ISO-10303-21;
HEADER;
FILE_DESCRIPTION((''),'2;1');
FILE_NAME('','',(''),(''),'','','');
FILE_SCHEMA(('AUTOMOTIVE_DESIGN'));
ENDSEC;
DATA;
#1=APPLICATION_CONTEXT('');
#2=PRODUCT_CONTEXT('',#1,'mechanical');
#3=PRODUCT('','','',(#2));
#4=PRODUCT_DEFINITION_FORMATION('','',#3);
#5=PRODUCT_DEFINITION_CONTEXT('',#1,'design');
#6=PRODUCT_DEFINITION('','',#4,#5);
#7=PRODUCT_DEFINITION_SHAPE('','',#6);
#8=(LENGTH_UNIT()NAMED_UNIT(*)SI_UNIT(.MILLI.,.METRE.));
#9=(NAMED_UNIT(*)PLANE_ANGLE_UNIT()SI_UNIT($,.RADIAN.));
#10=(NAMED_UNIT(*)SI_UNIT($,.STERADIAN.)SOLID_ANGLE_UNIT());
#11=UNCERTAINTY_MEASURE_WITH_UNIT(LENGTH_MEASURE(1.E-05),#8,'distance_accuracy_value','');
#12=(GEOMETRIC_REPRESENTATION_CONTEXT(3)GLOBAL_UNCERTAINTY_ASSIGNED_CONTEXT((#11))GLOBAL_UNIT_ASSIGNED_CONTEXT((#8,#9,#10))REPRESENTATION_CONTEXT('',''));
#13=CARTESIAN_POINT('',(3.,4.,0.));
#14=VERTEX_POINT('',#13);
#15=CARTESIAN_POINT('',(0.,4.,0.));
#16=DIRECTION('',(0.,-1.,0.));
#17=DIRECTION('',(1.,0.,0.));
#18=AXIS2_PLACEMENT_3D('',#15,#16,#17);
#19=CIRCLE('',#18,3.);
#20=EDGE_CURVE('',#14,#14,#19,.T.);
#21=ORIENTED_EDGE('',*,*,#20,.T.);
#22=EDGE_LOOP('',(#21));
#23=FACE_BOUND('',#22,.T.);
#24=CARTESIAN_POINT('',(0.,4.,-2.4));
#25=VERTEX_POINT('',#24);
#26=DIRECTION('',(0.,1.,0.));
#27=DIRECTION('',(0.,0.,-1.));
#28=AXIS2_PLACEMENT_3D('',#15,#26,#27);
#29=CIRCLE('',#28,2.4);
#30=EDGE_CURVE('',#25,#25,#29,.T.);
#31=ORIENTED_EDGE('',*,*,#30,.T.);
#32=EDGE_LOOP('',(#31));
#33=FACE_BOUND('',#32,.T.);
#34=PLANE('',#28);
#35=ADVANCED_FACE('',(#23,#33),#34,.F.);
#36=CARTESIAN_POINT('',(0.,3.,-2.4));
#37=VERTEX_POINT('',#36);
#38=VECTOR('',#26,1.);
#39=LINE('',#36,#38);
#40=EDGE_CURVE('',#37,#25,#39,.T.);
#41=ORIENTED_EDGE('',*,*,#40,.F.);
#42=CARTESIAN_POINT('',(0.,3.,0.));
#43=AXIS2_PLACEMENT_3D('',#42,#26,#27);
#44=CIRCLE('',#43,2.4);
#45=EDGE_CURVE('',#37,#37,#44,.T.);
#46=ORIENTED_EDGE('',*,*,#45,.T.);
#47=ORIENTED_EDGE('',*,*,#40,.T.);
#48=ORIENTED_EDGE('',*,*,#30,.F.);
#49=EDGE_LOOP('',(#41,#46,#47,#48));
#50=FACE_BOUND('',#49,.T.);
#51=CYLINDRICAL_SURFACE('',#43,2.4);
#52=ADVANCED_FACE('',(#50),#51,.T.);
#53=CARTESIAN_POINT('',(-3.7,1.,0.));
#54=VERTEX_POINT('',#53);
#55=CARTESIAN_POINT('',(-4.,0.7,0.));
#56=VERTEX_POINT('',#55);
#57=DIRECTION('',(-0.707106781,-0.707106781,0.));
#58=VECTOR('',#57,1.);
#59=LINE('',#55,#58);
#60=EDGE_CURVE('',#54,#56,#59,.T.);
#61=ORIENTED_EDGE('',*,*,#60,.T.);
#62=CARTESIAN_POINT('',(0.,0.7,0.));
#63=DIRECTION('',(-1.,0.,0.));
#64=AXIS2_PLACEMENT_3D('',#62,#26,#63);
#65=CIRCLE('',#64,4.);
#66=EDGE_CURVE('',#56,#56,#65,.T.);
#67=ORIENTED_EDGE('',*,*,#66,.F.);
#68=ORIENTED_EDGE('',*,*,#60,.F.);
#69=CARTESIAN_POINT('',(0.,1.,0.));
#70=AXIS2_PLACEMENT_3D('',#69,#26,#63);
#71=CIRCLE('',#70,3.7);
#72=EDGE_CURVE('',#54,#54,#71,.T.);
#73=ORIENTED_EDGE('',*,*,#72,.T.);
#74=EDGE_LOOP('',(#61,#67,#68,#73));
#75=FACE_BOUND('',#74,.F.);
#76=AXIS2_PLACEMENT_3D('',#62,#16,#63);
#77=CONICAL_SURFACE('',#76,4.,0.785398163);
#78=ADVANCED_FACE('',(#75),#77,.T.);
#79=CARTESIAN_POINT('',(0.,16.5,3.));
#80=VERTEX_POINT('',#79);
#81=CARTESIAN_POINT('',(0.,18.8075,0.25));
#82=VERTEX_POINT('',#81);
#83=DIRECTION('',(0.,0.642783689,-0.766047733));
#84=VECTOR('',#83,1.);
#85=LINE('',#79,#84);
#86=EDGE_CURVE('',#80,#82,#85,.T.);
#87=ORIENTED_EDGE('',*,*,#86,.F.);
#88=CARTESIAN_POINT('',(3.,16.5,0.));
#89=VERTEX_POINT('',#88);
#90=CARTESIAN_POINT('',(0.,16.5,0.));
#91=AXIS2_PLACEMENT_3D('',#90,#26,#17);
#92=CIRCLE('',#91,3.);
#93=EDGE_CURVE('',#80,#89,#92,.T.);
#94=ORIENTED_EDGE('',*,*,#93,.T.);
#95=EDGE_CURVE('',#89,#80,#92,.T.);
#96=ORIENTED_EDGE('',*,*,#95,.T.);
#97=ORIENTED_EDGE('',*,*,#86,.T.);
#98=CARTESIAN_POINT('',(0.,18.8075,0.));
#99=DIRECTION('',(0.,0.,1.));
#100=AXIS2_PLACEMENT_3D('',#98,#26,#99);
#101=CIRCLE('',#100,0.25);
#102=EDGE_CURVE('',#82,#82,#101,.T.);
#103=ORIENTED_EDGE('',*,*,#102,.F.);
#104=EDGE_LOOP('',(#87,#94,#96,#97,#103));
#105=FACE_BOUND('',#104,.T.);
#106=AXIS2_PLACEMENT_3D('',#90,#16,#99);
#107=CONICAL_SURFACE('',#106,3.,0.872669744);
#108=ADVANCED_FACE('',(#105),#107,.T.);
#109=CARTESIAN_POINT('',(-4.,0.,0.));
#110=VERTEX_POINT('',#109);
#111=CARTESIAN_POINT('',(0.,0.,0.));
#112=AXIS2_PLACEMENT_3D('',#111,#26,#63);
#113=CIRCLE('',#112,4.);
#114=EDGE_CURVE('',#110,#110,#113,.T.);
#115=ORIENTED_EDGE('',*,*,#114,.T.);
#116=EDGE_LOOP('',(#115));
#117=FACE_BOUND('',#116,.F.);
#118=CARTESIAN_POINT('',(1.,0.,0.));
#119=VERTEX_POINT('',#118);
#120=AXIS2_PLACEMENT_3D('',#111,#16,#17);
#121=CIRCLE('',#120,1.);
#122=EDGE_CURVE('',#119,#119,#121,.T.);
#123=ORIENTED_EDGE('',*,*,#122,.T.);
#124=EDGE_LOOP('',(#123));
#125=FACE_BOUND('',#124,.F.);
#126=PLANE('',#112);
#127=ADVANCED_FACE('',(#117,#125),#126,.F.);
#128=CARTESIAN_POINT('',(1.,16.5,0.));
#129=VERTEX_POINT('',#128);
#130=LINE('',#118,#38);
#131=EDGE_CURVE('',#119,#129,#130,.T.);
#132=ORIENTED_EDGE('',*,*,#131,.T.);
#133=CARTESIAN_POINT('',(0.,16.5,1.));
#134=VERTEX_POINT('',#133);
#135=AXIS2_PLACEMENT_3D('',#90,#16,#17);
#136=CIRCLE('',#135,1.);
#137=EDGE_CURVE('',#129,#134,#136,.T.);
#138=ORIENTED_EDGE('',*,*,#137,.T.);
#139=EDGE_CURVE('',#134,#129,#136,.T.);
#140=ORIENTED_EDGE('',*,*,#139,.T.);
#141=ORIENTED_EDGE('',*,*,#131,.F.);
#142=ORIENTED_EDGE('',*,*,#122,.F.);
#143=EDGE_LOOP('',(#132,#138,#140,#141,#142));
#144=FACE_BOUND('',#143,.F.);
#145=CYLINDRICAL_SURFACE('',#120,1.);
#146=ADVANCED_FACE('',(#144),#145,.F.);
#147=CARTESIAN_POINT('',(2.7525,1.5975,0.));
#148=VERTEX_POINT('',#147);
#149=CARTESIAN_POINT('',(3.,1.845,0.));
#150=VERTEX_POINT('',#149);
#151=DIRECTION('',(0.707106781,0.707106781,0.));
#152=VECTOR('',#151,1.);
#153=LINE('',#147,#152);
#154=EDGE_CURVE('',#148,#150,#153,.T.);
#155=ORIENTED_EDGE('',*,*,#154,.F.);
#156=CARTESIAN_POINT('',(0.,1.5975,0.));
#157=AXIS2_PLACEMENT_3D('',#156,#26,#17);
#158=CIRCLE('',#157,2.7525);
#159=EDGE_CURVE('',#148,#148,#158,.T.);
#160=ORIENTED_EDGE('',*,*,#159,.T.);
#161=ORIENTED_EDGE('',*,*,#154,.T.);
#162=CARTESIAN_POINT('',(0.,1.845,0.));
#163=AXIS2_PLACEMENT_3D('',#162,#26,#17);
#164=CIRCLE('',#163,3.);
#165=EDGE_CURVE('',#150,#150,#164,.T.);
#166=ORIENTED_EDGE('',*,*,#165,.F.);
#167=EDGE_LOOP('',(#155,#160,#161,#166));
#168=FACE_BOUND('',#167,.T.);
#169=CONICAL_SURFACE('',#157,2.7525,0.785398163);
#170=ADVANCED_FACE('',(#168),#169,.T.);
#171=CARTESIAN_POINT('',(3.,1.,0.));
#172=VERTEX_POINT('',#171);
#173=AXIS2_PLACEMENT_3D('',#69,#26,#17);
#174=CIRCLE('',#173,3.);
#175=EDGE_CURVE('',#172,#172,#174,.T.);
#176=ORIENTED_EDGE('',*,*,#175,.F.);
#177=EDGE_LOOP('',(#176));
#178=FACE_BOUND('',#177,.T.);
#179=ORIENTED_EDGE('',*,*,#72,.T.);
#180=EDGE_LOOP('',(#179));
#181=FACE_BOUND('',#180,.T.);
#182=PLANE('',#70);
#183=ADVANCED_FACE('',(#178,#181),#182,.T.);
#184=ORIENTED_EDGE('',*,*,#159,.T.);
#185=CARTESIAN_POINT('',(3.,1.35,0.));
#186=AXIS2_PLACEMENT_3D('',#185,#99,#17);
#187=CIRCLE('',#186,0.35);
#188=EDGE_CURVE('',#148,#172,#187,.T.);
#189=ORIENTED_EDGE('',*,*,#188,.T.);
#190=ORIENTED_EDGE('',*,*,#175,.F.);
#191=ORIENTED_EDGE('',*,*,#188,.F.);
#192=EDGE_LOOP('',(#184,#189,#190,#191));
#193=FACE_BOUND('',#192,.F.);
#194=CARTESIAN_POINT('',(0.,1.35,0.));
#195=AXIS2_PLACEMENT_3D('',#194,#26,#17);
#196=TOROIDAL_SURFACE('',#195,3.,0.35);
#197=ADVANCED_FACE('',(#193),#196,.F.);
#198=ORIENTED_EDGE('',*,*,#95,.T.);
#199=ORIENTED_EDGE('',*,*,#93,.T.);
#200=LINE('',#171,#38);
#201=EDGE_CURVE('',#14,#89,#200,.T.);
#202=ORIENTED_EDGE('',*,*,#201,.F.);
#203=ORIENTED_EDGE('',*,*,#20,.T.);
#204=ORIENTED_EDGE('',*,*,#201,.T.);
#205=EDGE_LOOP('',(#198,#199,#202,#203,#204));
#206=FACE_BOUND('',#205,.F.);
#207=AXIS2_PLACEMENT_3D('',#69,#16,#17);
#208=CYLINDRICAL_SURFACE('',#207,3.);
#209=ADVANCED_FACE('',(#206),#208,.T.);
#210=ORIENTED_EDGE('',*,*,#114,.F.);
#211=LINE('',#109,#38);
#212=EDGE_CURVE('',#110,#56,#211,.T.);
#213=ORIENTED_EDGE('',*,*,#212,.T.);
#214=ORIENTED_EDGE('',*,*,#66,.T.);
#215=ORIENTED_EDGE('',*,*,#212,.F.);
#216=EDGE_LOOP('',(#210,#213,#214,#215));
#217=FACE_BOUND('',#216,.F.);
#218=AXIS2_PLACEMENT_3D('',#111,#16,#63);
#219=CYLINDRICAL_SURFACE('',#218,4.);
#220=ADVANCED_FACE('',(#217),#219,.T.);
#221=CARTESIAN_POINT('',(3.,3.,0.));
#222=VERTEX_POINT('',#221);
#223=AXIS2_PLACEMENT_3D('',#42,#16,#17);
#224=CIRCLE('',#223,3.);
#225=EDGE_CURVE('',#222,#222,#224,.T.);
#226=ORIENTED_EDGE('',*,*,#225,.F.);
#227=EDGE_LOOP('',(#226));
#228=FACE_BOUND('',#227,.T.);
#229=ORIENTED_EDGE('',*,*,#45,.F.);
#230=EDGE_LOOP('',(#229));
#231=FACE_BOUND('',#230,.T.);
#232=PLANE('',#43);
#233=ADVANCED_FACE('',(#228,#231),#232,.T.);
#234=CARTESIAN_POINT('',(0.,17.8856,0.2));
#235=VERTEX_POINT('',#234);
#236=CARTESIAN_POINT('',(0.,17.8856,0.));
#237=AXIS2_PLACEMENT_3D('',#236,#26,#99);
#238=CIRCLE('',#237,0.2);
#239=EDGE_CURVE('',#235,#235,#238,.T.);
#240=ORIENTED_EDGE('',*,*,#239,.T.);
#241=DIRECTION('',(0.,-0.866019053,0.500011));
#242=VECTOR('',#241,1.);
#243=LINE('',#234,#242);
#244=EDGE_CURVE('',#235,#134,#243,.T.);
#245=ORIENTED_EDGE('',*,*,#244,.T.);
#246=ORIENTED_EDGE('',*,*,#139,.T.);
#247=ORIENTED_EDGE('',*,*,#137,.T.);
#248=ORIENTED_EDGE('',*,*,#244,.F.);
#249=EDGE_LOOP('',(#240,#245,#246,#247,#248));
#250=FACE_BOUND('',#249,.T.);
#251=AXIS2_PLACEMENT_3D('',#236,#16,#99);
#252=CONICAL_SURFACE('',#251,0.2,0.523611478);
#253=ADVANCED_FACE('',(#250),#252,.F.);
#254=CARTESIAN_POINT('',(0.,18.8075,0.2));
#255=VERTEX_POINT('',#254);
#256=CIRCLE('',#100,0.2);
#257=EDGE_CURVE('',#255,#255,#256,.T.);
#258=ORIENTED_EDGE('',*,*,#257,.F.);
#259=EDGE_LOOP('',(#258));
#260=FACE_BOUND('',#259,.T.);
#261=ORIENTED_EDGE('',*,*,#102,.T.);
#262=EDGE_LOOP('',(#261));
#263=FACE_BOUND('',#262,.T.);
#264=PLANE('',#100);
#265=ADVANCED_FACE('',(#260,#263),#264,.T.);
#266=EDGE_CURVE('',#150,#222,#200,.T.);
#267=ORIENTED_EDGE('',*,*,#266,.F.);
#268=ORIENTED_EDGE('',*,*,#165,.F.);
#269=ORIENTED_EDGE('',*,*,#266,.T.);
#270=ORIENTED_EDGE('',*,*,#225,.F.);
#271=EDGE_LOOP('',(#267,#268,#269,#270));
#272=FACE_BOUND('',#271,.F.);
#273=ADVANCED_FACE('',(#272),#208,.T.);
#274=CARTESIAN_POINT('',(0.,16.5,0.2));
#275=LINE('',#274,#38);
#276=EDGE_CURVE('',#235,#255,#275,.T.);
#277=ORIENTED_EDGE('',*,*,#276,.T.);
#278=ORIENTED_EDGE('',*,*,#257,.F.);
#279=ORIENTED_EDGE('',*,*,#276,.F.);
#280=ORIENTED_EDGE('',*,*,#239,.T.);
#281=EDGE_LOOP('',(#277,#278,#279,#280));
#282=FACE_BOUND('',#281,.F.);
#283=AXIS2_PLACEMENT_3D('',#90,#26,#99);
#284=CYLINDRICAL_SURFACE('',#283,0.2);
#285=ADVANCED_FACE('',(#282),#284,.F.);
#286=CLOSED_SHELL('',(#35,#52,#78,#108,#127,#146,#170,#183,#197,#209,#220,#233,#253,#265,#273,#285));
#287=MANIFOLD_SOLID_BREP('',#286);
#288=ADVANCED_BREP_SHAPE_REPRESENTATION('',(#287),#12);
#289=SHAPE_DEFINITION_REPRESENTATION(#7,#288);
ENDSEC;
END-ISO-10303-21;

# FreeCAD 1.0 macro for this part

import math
import FreeCAD as App
import Part
import Sketcher

V = App.Vector
Q = App.Units.Quantity


def edges_at(feature, points):
    """Names of the edges that pass closest to the given points."""
    edges = feature.Shape.Edges
    near = lambda p: min(range(len(edges)), key=lambda i: edges[i].distToShape(Part.Vertex(*p))[0])
    return sorted({f"Edge{near(p) + 1}" for p in points})

doc = App.newDocument("Part")
body = doc.addObject("PartDesign::Body", "Body")

sketch1 = doc.addObject("Sketcher::SketchObject", "Sketch")
body.addObject(sketch1)
sketch1.AttachmentSupport = (doc.XZ_Plane, [""])
sketch1.MapMode = "FlatFace"
sketch1.addGeometry(Part.Circle(V(0, 0, 0), V(0, 0, 1), 4), False)
sketch1.addConstraint(Sketcher.Constraint("Coincident", 0, 3, -1, 1))
sketch1.addConstraint(Sketcher.Constraint("Diameter", 0, 8.0))
pad1 = doc.addObject("PartDesign::Pad", "Pad")
body.addObject(pad1)
pad1.Profile = sketch1
pad1.Length = 1
pad1.Reversed = True

sketch2 = doc.addObject("Sketcher::SketchObject", "Sketch001")
body.addObject(sketch2)
sketch2.AttachmentSupport = (doc.XZ_Plane, [""])
sketch2.MapMode = "FlatFace"
sketch2.AttachmentOffset = App.Placement(V(0, 0, -1), App.Rotation())
sketch2.addGeometry(Part.Circle(V(0, 0, 0), V(0, 0, 1), 3), False)
sketch2.addConstraint(Sketcher.Constraint("Coincident", 0, 3, -1, 1))
sketch2.addConstraint(Sketcher.Constraint("Diameter", 0, 6.0))
pad2 = doc.addObject("PartDesign::Pad", "Pad001")
body.addObject(pad2)
pad2.Profile = sketch2
pad2.Length = 15.5
pad2.Reversed = True

sketch3 = doc.addObject("Sketcher::SketchObject", "Sketch002")
body.addObject(sketch3)
sketch3.AttachmentSupport = (doc.XZ_Plane, [""])
sketch3.MapMode = "FlatFace"
sketch3.addGeometry(Part.Circle(V(0, 0, 0), V(0, 0, 1), 1), False)
sketch3.addConstraint(Sketcher.Constraint("Coincident", 0, 3, -1, 1))
sketch3.addConstraint(Sketcher.Constraint("Diameter", 0, 2.0))
pocket1 = doc.addObject("PartDesign::Pocket", "Pocket")
body.addObject(pocket1)
pocket1.Profile = sketch3
pocket1.Length = 21

sketch4 = doc.addObject("Sketcher::SketchObject", "Sketch003")
body.addObject(sketch4)
sketch4.AttachmentSupport = (doc.YZ_Plane, [""])
sketch4.MapMode = "FlatFace"
sketch4.addGeometry(Part.LineSegment(V(18.81, 0.25, 0), V(16.5, 3, 0)), False)
sketch4.addGeometry(Part.LineSegment(V(16.5, 3, 0), V(16.5, 1, 0)), False)
sketch4.addGeometry(Part.LineSegment(V(16.5, 1, 0), V(17.89, 0.2, 0)), False)
sketch4.addGeometry(Part.LineSegment(V(17.89, 0.2, 0), V(18.81, 0.2, 0)), False)
sketch4.addGeometry(Part.LineSegment(V(18.81, 0.2, 0), V(18.81, 0.25, 0)), False)
sketch4.addConstraint(Sketcher.Constraint("Coincident", 0, 2, 1, 1))
sketch4.addConstraint(Sketcher.Constraint("Coincident", 1, 2, 2, 1))
sketch4.addConstraint(Sketcher.Constraint("Coincident", 2, 2, 3, 1))
sketch4.addConstraint(Sketcher.Constraint("Coincident", 3, 2, 4, 1))
sketch4.addConstraint(Sketcher.Constraint("Coincident", 4, 2, 0, 1))
sketch4.addConstraint(Sketcher.Constraint("Vertical", 1))
sketch4.addConstraint(Sketcher.Constraint("Horizontal", 3))
sketch4.addConstraint(Sketcher.Constraint("Vertical", 4))
sketch4.addConstraint(Sketcher.Constraint("DistanceY", 4, 1, 4, 2, 0.05))
sketch4.addConstraint(Sketcher.Constraint("DistanceY", -1, 1, 2, 2, 0.2))
sketch4.addConstraint(Sketcher.Constraint("DistanceY", 1, 2, 1, 1, 2.0))
sketch4.addConstraint(Sketcher.Constraint("Angle", 0, Q("129.9997 deg")))
sketch4.addConstraint(Sketcher.Constraint("Angle", 2, Q("-30.0007 deg")))
sketch4.addConstraint(Sketcher.Constraint("DistanceY", -1, 1, 0, 2, 3.0))
sketch4.addConstraint(Sketcher.Constraint("DistanceX", -1, 1, 0, 2, 16.5))
revolution = doc.addObject("PartDesign::Revolution", "Revolution")
body.addObject(revolution)
revolution.Profile = sketch4
revolution.ReferenceAxis = (sketch4, ["H_Axis"])
revolution.Angle = 360

sketch5 = doc.addObject("Sketcher::SketchObject", "Sketch004")
body.addObject(sketch5)
sketch5.AttachmentSupport = (doc.XY_Plane, [""])
sketch5.MapMode = "FlatFace"
sketch5.addGeometry(Part.LineSegment(V(3.35, 1.35, 0), V(3.37, 2.22, 0)), False)
sketch5.addGeometry(Part.LineSegment(V(3.37, 2.22, 0), V(2.75, 1.6, 0)), False)
sketch5.addGeometry(Part.ArcOfCircle(Part.Circle(V(3, 1.35, 0), V(0, 0, 1), 0.35), math.radians(135), math.radians(360)), False)
sketch5.addConstraint(Sketcher.Constraint("Coincident", 0, 2, 1, 1))
sketch5.addConstraint(Sketcher.Constraint("Tangent", 1, 2, 2, 1))
sketch5.addConstraint(Sketcher.Constraint("Coincident", 2, 2, 0, 1))
sketch5.addConstraint(Sketcher.Constraint("Radius", 2, 0.35))
sketch5.addConstraint(Sketcher.Constraint("Angle", 1, Q("-135 deg")))
sketch5.addConstraint(Sketcher.Constraint("DistanceX", -1, 1, 2, 3, 3.0))
sketch5.addConstraint(Sketcher.Constraint("DistanceY", -1, 1, 2, 3, 1.35))
sketch5.addConstraint(Sketcher.Constraint("DistanceY", -1, 1, 2, 2, 1.35))
sketch5.addConstraint(Sketcher.Constraint("Distance", 1, 0.878))
groove = doc.addObject("PartDesign::Groove", "Groove")
body.addObject(groove)
groove.Profile = sketch5
groove.ReferenceAxis = (sketch5, ["V_Axis"])
groove.Angle = 360
doc.recompute()

chamfer = doc.addObject("PartDesign::Chamfer", "Chamfer")
body.addObject(chamfer)
chamfer.Base = (groove, edges_at(groove, [(4, 1, 0)]))
chamfer.Size = 0.3

sketch6 = doc.addObject("Sketcher::SketchObject", "Sketch005")
body.addObject(sketch6)
sketch6.AttachmentSupport = (doc.YZ_Plane, [""])
sketch6.MapMode = "FlatFace"
sketch6.addGeometry(Part.LineSegment(V(3, -2.4, 0), V(3, -3, 0)), False)
sketch6.addGeometry(Part.LineSegment(V(3, -3, 0), V(4, -3, 0)), False)
sketch6.addGeometry(Part.LineSegment(V(4, -3, 0), V(4, -2.4, 0)), False)
sketch6.addGeometry(Part.LineSegment(V(4, -2.4, 0), V(3, -2.4, 0)), False)
sketch6.addConstraint(Sketcher.Constraint("Coincident", 0, 2, 1, 1))
sketch6.addConstraint(Sketcher.Constraint("Coincident", 1, 2, 2, 1))
sketch6.addConstraint(Sketcher.Constraint("Coincident", 2, 2, 3, 1))
sketch6.addConstraint(Sketcher.Constraint("Coincident", 3, 2, 0, 1))
sketch6.addConstraint(Sketcher.Constraint("Vertical", 0))
sketch6.addConstraint(Sketcher.Constraint("Horizontal", 1))
sketch6.addConstraint(Sketcher.Constraint("Vertical", 2))
sketch6.addConstraint(Sketcher.Constraint("Horizontal", 3))
sketch6.addConstraint(Sketcher.Constraint("DistanceX", 1, 1, 1, 2, 1.0))
sketch6.addConstraint(Sketcher.Constraint("DistanceY", 0, 2, 0, 1, 0.6))
sketch6.addConstraint(Sketcher.Constraint("DistanceX", -1, 1, 0, 2, 3.0))
sketch6.addConstraint(Sketcher.Constraint("DistanceY", 0, 2, -1, 1, 3.0))
groove2 = doc.addObject("PartDesign::Groove", "Groove001")
body.addObject(groove2)
groove2.Profile = sketch6
groove2.ReferenceAxis = (sketch6, ["H_Axis"])
groove2.Angle = 360

doc.recompute()
